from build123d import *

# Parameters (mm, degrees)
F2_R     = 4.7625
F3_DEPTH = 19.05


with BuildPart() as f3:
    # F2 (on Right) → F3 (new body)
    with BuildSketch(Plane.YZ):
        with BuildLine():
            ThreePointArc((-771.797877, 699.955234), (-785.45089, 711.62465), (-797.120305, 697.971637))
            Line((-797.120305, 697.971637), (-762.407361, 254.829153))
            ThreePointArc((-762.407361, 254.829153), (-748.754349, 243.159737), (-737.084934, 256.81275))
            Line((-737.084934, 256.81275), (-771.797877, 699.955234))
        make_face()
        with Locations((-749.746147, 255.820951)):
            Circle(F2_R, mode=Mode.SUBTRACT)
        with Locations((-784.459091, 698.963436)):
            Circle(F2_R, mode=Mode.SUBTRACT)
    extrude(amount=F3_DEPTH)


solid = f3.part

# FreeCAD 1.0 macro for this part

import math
import FreeCAD as App
import Part
import Sketcher
Q = App.Units.Quantity

doc = App.newDocument("Part")
body = doc.addObject("PartDesign::Body", "Body")

sketch1 = body.newObject("Sketcher::SketchObject", "Sketch")
sketch1.AttachmentSupport = (doc.getObject("YZ_Plane"), [""])
sketch1.MapMode = "FlatFace"
sketch1.addGeometry(Part.ArcOfCircle(Part.Circle(App.Vector(-784.459091, 698.963436, 0), App.Vector(0, 0, 1), 12.7), math.radians(4.479036), math.radians(184.479041)), False)
sketch1.addGeometry(Part.LineSegment(App.Vector(-797.120305, 697.971637, 0), App.Vector(-762.407361, 254.829153, 0)), False)
sketch1.addGeometry(Part.ArcOfCircle(Part.Circle(App.Vector(-749.746147, 255.820951, 0), App.Vector(0, 0, 1), 12.7), math.radians(-175.520966), math.radians(4.479043)), False)
sketch1.addGeometry(Part.LineSegment(App.Vector(-737.084934, 256.81275, 0), App.Vector(-771.797877, 699.955234, 0)), False)
sketch1.addGeometry(Part.Circle(App.Vector(-749.746147, 255.820951, 0), App.Vector(0, 0, 1), 4.7625), False)
sketch1.addGeometry(Part.Circle(App.Vector(-784.459091, 698.963436, 0), App.Vector(0, 0, 1), 4.7625), False)
sketch1.addConstraint(Sketcher.Constraint("Tangent", 0, 2, 1, 1))
sketch1.addConstraint(Sketcher.Constraint("Tangent", 1, 2, 2, 1))
sketch1.addConstraint(Sketcher.Constraint("Tangent", 2, 2, 3, 1))
sketch1.addConstraint(Sketcher.Constraint("Tangent", 3, 2, 0, 1))
sketch1.addConstraint(Sketcher.Constraint("Coincident", 4, 3, 2, 3))
sketch1.addConstraint(Sketcher.Constraint("Coincident", 5, 3, 0, 3))
sketch1.addConstraint(Sketcher.Constraint("Equal", 0, 2))
sketch1.addConstraint(Sketcher.Constraint("Equal", 4, 5))
sketch1.addConstraint(Sketcher.Constraint("Radius", 0, Q("0.5 in")))
sketch1.addConstraint(Sketcher.Constraint("Diameter", 4, Q("0.375 in")))
sketch1.addConstraint(Sketcher.Constraint("Distance", 1, Q("17.5 in")))
sketch1.addConstraint(Sketcher.Constraint("DistanceY", 1, 2, 4, 3, 0.991798))
sketch1.addConstraint(Sketcher.Constraint("DistanceX", 0, 3, -1, 1, 784.459091))
sketch1.addConstraint(Sketcher.Constraint("DistanceY", -1, 1, 2, 3, 255.820951))
pad1 = body.newObject("PartDesign::Pad", "Pad")
pad1.Profile = sketch1
pad1.Length = Q("0.75 in")

doc.recompute()
